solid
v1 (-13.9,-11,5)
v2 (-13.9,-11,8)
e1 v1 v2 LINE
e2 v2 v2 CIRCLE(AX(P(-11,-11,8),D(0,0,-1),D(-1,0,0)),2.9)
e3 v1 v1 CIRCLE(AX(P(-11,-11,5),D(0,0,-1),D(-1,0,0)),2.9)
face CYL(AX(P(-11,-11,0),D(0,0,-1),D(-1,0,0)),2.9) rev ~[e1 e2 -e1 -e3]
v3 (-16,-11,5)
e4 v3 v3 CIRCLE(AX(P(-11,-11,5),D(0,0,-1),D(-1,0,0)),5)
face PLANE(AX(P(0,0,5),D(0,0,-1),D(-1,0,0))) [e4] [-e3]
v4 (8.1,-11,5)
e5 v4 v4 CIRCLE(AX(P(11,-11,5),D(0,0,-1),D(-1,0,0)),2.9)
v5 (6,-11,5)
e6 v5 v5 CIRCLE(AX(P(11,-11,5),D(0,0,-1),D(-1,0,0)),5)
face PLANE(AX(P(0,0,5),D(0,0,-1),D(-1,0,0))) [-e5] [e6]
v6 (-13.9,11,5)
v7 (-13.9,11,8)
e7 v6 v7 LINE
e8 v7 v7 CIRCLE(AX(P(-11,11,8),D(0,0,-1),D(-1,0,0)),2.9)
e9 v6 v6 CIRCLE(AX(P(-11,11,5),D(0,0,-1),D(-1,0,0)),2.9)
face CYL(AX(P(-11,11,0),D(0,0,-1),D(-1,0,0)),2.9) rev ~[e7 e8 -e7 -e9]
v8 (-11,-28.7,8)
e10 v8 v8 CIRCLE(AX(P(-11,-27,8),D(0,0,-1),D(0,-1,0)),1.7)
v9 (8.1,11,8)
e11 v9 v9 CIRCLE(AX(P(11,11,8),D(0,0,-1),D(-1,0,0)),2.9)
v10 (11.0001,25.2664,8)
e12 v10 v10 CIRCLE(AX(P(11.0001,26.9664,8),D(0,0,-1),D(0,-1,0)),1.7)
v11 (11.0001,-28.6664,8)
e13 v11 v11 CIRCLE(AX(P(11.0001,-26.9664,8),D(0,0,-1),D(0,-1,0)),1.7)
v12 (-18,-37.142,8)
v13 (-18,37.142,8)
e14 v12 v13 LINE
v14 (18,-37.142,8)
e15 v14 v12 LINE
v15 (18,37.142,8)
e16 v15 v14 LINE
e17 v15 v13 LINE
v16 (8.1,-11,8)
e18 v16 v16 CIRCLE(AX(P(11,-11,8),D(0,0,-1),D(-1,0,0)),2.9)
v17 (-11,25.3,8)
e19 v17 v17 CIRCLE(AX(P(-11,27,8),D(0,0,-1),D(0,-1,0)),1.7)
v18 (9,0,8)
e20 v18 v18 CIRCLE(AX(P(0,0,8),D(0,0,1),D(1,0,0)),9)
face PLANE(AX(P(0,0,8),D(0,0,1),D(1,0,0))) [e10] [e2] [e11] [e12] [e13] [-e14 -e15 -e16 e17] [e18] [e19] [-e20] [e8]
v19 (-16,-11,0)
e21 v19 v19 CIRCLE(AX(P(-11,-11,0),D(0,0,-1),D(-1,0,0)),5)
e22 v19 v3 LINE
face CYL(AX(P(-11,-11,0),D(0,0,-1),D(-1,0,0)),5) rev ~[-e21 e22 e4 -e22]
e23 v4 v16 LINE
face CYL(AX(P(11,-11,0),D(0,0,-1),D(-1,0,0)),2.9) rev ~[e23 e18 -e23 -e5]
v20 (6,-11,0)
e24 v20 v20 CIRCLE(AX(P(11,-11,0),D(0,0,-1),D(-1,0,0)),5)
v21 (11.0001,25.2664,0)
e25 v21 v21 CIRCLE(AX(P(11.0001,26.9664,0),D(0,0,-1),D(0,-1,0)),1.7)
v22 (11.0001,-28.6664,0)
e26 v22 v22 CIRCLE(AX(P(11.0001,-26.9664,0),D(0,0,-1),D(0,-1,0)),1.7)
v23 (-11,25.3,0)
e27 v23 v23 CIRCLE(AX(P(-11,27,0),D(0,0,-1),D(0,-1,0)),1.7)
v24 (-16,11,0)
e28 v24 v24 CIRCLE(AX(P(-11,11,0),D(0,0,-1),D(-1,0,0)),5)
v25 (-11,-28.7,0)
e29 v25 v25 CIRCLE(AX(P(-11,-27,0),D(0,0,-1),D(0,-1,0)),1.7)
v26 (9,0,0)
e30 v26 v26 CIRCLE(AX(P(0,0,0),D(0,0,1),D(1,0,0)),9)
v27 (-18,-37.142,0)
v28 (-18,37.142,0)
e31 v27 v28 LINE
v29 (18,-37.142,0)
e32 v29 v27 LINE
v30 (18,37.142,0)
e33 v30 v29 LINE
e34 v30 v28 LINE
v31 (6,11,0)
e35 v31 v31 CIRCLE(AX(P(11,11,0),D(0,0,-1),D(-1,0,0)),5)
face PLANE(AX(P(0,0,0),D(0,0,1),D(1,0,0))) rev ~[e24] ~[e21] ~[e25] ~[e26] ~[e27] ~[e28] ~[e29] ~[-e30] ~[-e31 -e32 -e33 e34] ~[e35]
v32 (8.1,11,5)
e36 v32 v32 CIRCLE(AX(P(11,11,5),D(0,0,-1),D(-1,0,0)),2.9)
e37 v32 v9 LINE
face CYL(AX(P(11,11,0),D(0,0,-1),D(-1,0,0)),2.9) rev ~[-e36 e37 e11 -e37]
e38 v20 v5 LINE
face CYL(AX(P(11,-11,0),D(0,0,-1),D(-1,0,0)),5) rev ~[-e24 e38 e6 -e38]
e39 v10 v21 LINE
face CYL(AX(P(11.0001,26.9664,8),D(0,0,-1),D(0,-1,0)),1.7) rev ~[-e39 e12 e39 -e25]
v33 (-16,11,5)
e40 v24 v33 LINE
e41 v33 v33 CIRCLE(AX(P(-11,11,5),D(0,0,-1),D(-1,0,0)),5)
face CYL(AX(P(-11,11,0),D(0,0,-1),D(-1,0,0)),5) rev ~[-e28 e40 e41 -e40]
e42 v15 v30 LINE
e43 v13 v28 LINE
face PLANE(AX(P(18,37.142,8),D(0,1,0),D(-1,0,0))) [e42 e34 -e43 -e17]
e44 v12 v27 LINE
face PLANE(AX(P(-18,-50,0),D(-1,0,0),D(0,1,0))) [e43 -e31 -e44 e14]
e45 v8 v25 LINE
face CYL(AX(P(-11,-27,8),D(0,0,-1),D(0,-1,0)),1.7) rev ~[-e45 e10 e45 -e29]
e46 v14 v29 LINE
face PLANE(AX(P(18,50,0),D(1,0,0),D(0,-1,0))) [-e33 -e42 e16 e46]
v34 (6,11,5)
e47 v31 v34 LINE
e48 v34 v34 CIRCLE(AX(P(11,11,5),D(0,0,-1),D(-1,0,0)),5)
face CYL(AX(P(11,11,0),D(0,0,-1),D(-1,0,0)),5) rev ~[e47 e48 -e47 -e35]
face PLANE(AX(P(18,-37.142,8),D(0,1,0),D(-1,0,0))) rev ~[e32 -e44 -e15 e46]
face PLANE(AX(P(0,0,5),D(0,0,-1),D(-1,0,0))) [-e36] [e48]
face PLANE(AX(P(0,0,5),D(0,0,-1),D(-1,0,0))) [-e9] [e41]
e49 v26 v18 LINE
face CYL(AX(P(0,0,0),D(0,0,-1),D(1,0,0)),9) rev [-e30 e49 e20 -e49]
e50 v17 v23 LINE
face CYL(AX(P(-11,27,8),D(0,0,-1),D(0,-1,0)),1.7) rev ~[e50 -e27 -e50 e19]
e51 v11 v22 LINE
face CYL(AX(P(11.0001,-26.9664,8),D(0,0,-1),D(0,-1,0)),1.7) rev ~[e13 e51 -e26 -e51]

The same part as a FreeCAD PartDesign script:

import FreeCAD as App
import Part
import Sketcher


def add_polygon(sketch, points):
    """Adds a closed chain of lines whose ends are joined by coincident constraints."""
    first, n = sketch.GeometryCount, len(points)
    for a, b in zip(points, points[1:] + points[:1]):
        sketch.addGeometry(Part.LineSegment(App.Vector(*a, 0), App.Vector(*b, 0)), False)
    for i in range(n):
        sketch.addConstraint(Sketcher.Constraint("Coincident", first + i, 2, first + (i + 1) % n, 1))

doc = App.newDocument("Part")
body = doc.addObject("PartDesign::Body", "Body")

sketch1 = doc.addObject("Sketcher::SketchObject", "Sketch")
body.addObject(sketch1)
sketch1.AttachmentSupport = (doc.XY_Plane, [""])
sketch1.MapMode = "FlatFace"
add_polygon(sketch1, [(-18, -50), (18, -50), (18, 50), (-18, 50)])
sketch1.addGeometry(Part.Circle(App.Vector(0, 0, 0), App.Vector(0, 0, 1), 9), False)
sketch1.addConstraint([
    Sketcher.Constraint("Horizontal", 0),
    Sketcher.Constraint("Vertical", 1),
    Sketcher.Constraint("Horizontal", 2),
    Sketcher.Constraint("Vertical", 3),
    Sketcher.Constraint("Coincident", 4, 3, -1, 1),
    Sketcher.Constraint("Symmetric", 0, 2, 2, 2, -1, 1),
    Sketcher.Constraint("Diameter", 4, 18.0),
    Sketcher.Constraint("DistanceX", 0, 1, 0, 2, 36.0),
    Sketcher.Constraint("DistanceY", 1, 1, 1, 2, 100.0),
])
pad1 = doc.addObject("PartDesign::Pad", "Pad")
body.addObject(pad1)
pad1.Profile = sketch1
pad1.Length = 8

sketch2 = doc.addObject("Sketcher::SketchObject", "Sketch001")
body.addObject(sketch2)
sketch2.AttachmentSupport = (doc.XY_Plane, [""])
sketch2.MapMode = "FlatFace"
sketch2.AttachmentOffset = App.Placement(App.Vector(0, 0, 8), App.Rotation())
sketch2.addGeometry([
    Part.Circle(App.Vector(-11, -27, 0), App.Vector(0, 0, 1), 1.7),
    Part.Circle(App.Vector(11, -27, 0), App.Vector(0, 0, 1), 1.7),
    Part.Circle(App.Vector(-11, 27, 0), App.Vector(0, 0, 1), 1.7),
    Part.Circle(App.Vector(11, 27, 0), App.Vector(0, 0, 1), 1.7),
], False)
sketch2.addConstraint([
    Sketcher.Constraint("Equal", 0, 1),
    Sketcher.Constraint("Equal", 1, 2),
    Sketcher.Constraint("Equal", 2, 3),
    Sketcher.Constraint("Symmetric", 0, 3, 2, 3, -1),
    Sketcher.Constraint("Symmetric", 1, 3, 3, 3, -1),
    Sketcher.Constraint("Diameter", 0, 3.4),
    Sketcher.Constraint("DistanceX", 0, 3, -1, 1, 11.0),
    Sketcher.Constraint("DistanceY", 0, 3, -1, 1, 27.0),
    Sketcher.Constraint("DistanceX", -1, 1, 1, 3, 11.0),
    Sketcher.Constraint("DistanceY", 1, 3, -1, 1, 26.9664),
])
doc.recompute()
hole = doc.addObject("PartDesign::Hole", "Hole")
body.addObject(hole)
hole.Profile = sketch2
hole.ThreadType = "None"
hole.Diameter = 3.4
hole.DepthType = "ThroughAll"

sketch3 = doc.addObject("Sketcher::SketchObject", "Sketch002")
body.addObject(sketch3)
sketch3.AttachmentSupport = (doc.XY_Plane, [""])
sketch3.MapMode = "FlatFace"
sketch3.addGeometry([
    Part.Circle(App.Vector(11, -11, 0), App.Vector(0, 0, 1), 2.9),
    Part.Circle(App.Vector(-11, -11, 0), App.Vector(0, 0, 1), 2.9),
    Part.Circle(App.Vector(-11, 11, 0), App.Vector(0, 0, 1), 2.9),
    Part.Circle(App.Vector(11, 11, 0), App.Vector(0, 0, 1), 2.9),
], False)
sketch3.addConstraint([
    Sketcher.Constraint("Equal", 0, 1),
    Sketcher.Constraint("Equal", 1, 2),
    Sketcher.Constraint("Equal", 2, 3),
    Sketcher.Constraint("Symmetric", 0, 3, 2, 3, -1, 1),
    Sketcher.Constraint("Symmetric", 1, 3, 3, 3, -1, 1),
    Sketcher.Constraint("Symmetric", 0, 3, 1, 3, -2),
    Sketcher.Constraint("Diameter", 0, 5.8),
    Sketcher.Constraint("DistanceX", -1, 1, 0, 3, 11.0),
    Sketcher.Constraint("DistanceY", 0, 3, -1, 1, 11.0),
])
pocket1 = doc.addObject("PartDesign::Pocket", "Pocket")
body.addObject(pocket1)
pocket1.Profile = sketch3
pocket1.Type = "ThroughAll"
pocket1.Reversed = True

sketch4 = doc.addObject("Sketcher::SketchObject", "Sketch003")
body.addObject(sketch4)
sketch4.AttachmentSupport = (doc.XY_Plane, [""])
sketch4.MapMode = "FlatFace"
sketch4.addGeometry([
    Part.Circle(App.Vector(11, -11, 0), App.Vector(0, 0, 1), 5),
    Part.Circle(App.Vector(11, -11, 0), App.Vector(0, 0, 1), 2.9),
    Part.Circle(App.Vector(11, 11, 0), App.Vector(0, 0, 1), 5),
    Part.Circle(App.Vector(11, 11, 0), App.Vector(0, 0, 1), 2.9),
    Part.Circle(App.Vector(-11, 11, 0), App.Vector(0, 0, 1), 5),
    Part.Circle(App.Vector(-11, 11, 0), App.Vector(0, 0, 1), 2.9),
    Part.Circle(App.Vector(-11, -11, 0), App.Vector(0, 0, 1), 5),
    Part.Circle(App.Vector(-11, -11, 0), App.Vector(0, 0, 1), 2.9),
], False)
sketch4.addConstraint([
    Sketcher.Constraint("Coincident", 1, 3, 0, 3),
    Sketcher.Constraint("Coincident", 3, 3, 2, 3),
    Sketcher.Constraint("Coincident", 5, 3, 4, 3),
    Sketcher.Constraint("Coincident", 7, 3, 6, 3),
    Sketcher.Constraint("Equal", 0, 2),
    Sketcher.Constraint("Equal", 1, 3),
    Sketcher.Constraint("Equal", 2, 4),
    Sketcher.Constraint("Equal", 3, 5),
    Sketcher.Constraint("Equal", 4, 6),
    Sketcher.Constraint("Equal", 5, 7),
    Sketcher.Constraint("Symmetric", 0, 3, 4, 3, -1, 1),
    Sketcher.Constraint("Symmetric", 2, 3, 6, 3, -1, 1),
    Sketcher.Constraint("Symmetric", 2, 3, 4, 3, -2),
    Sketcher.Constraint("Diameter", 0, 10.0),
    Sketcher.Constraint("Diameter", 1, 5.8),
    Sketcher.Constraint("DistanceX", -1, 1, 0, 3, 11.0),
    Sketcher.Constraint("DistanceY", 0, 3, -1, 1, 11.0),
])
pocket2 = doc.addObject("PartDesign::Pocket", "Pocket001")
body.addObject(pocket2)
pocket2.Profile = sketch4
pocket2.Length = 5
pocket2.Reversed = True

sketch5 = doc.addObject("Sketcher::SketchObject", "Sketch004")
body.addObject(sketch5)
sketch5.AttachmentSupport = (doc.XY_Plane, [""])
sketch5.MapMode = "FlatFace"
sketch5.AttachmentOffset = App.Placement(App.Vector(0, 0, 8), App.Rotation())
add_polygon(sketch5, [(18, 50), (-18, 50), (-18, 37), (18, 37)])
add_polygon(sketch5, [(18, -37), (-18, -37), (-18, -50), (18, -50)])
sketch5.addConstraint([
    Sketcher.Constraint("Horizontal", 0),
    Sketcher.Constraint("Vertical", 1),
    Sketcher.Constraint("Horizontal", 2),
    Sketcher.Constraint("Vertical", 3),
    Sketcher.Constraint("Horizontal", 4),
    Sketcher.Constraint("Vertical", 5),
    Sketcher.Constraint("Horizontal", 6),
    Sketcher.Constraint("Vertical", 7),
    Sketcher.Constraint("Symmetric", 2, 2, 4, 2, -1, 1),
    Sketcher.Constraint("Symmetric", 0, 2, 6, 2, -1, 1),
    Sketcher.Constraint("Vertical", 1, 2, 4, 2),
    Sketcher.Constraint("DistanceX", 0, 2, 0, 1, 36.0),
    Sketcher.Constraint("DistanceY", -1, 1, 0, 2, 50.0),
    Sketcher.Constraint("DistanceY", 1, 2, 1, 1, 12.858),
])
pocket3 = doc.addObject("PartDesign::Pocket", "Pocket002")
body.addObject(pocket3)
pocket3.Profile = sketch5
pocket3.Type = "ThroughAll"

doc.recompute()
